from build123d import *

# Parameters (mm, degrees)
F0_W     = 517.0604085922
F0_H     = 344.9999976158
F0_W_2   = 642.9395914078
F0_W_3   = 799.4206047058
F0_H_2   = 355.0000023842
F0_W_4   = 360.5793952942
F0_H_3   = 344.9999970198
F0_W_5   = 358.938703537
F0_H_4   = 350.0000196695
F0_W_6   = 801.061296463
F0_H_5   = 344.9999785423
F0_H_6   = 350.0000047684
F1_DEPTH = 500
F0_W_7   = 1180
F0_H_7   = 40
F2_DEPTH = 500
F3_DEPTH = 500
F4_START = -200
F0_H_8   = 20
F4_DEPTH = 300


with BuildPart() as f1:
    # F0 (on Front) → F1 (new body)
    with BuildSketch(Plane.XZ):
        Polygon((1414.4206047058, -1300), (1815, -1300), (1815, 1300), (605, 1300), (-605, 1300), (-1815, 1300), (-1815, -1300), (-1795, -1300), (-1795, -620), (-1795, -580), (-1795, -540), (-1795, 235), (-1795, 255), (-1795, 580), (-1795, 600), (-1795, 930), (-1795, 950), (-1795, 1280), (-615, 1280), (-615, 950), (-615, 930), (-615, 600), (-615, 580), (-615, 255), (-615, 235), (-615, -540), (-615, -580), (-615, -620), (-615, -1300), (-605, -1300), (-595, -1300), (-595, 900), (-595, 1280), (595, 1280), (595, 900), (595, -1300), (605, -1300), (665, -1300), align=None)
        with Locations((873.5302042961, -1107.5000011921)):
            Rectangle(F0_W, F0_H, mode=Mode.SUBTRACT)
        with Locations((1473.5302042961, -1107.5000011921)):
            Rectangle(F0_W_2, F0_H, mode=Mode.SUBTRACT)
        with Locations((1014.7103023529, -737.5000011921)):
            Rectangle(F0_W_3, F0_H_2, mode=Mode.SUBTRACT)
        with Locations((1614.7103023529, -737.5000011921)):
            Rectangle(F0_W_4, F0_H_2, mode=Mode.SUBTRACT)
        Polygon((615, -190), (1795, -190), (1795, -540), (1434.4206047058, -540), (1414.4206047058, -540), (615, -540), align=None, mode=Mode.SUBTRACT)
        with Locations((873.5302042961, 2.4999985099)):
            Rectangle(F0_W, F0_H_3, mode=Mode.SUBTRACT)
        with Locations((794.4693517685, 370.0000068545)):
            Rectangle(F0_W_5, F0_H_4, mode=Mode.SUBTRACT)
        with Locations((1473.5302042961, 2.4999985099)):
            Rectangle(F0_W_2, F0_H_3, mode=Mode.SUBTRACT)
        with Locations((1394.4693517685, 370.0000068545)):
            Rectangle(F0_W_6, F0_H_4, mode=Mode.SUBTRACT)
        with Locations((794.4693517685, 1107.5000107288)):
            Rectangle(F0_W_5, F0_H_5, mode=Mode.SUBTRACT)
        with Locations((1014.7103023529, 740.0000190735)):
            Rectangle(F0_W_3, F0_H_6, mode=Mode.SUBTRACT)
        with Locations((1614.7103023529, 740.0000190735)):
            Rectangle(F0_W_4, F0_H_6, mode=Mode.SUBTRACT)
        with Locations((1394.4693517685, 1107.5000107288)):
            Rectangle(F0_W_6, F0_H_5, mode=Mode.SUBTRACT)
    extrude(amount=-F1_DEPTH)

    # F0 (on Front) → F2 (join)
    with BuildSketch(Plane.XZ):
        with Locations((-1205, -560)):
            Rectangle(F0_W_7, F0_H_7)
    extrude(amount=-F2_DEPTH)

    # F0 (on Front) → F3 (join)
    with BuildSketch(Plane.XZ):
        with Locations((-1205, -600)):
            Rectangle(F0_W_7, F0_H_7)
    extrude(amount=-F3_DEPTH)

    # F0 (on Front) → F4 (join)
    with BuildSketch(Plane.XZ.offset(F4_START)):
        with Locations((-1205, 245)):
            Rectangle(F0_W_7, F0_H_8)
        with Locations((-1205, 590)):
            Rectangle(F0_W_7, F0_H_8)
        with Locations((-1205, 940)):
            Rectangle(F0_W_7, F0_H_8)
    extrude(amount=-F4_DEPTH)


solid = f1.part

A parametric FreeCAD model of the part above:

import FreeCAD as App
import Part
import Sketcher
Q = App.Units.Quantity

doc = App.newDocument("Part")
body = doc.addObject("PartDesign::Body", "Body")

# Sketch on XZ plane
sketch1 = body.newObject("Sketcher::SketchObject", "Sketch")
sketch1.AttachmentSupport = (doc.getObject("XZ_Plane"), [""])
sketch1.MapMode = "FlatFace"
sketch1.addGeometry([
    Part.LineSegment(App.Vector(1815, -1300, 0), App.Vector(1815, 1300, 0)),  # 0
    Part.LineSegment(App.Vector(1815, 1300, 0), App.Vector(-1815, 1300, 0)),  # 1
    Part.LineSegment(App.Vector(-1815, 1300, 0), App.Vector(-1815, -1300, 0)),  # 2
    Part.LineSegment(App.Vector(-1815, -1300, 0), App.Vector(-1795, -1300, 0)),  # 3
    Part.LineSegment(App.Vector(-1795, -1300, 0), App.Vector(-1795, 1280, 0)),  # 4
    Part.LineSegment(App.Vector(-1795, 1280, 0), App.Vector(-615, 1280, 0)),  # 5
    Part.LineSegment(App.Vector(-615, 1280, 0), App.Vector(-615, -1300, 0)),  # 6
    Part.LineSegment(App.Vector(-615, -1300, 0), App.Vector(-595, -1300, 0)),  # 7
    Part.LineSegment(App.Vector(-595, -1300, 0), App.Vector(-595, 1280, 0)),  # 8
    Part.LineSegment(App.Vector(-595, 1280, 0), App.Vector(595, 1280, 0)),  # 9
    Part.LineSegment(App.Vector(595, 1280, 0), App.Vector(595, -1300, 0)),  # 10
    Part.LineSegment(App.Vector(595, -1300, 0), App.Vector(1815, -1300, 0)),  # 11
    Part.LineSegment(App.Vector(1132, -1280, 0), App.Vector(615, -1280, 0)),  # 12
    Part.LineSegment(App.Vector(615, -1280, 0), App.Vector(615, -935, 0)),  # 13
    Part.LineSegment(App.Vector(615, -935, 0), App.Vector(1132, -935, 0)),  # 14
    Part.LineSegment(App.Vector(1132, -935, 0), App.Vector(1132, -1280, 0)),  # 15
    Part.LineSegment(App.Vector(1414, -915, 0), App.Vector(615, -915, 0)),  # 16
    Part.LineSegment(App.Vector(615, -915, 0), App.Vector(615, -560, 0)),  # 17
    Part.LineSegment(App.Vector(615, -560, 0), App.Vector(1414, -560, 0)),  # 18
    Part.LineSegment(App.Vector(1414, -560, 0), App.Vector(1414, -915, 0)),  # 19
    Part.LineSegment(App.Vector(1795, -1280, 0), App.Vector(1152, -1280, 0)),  # 20
    Part.LineSegment(App.Vector(1152, -1280, 0), App.Vector(1152, -935, 0)),  # 21
    Part.LineSegment(App.Vector(1152, -935, 0), App.Vector(1795, -935, 0)),  # 22
    Part.LineSegment(App.Vector(1795, -935, 0), App.Vector(1795, -1280, 0)),  # 23
    Part.LineSegment(App.Vector(1795, -915, 0), App.Vector(1434, -915, 0)),  # 24
    Part.LineSegment(App.Vector(1434, -915, 0), App.Vector(1434, -560, 0)),  # 25
    Part.LineSegment(App.Vector(1434, -560, 0), App.Vector(1795, -560, 0)),  # 26
    Part.LineSegment(App.Vector(1795, -560, 0), App.Vector(1795, -915, 0)),  # 27
    Part.LineSegment(App.Vector(615, -540, 0), App.Vector(615, -190, 0)),  # 28
    Part.LineSegment(App.Vector(615, -190, 0), App.Vector(1795, -190, 0)),  # 29
    Part.LineSegment(App.Vector(1795, -190, 0), App.Vector(1795, -540, 0)),  # 30
    Part.LineSegment(App.Vector(1795, -540, 0), App.Vector(615, -540, 0)),  # 31
    Part.LineSegment(App.Vector(1132, -170, 0), App.Vector(615, -170, 0)),  # 32
    Part.LineSegment(App.Vector(615, -170, 0), App.Vector(615, 175, 0)),  # 33
    Part.LineSegment(App.Vector(615, 175, 0), App.Vector(1132, 175, 0)),  # 34
    Part.LineSegment(App.Vector(1132, 175, 0), App.Vector(1132, -170, 0)),  # 35
    Part.LineSegment(App.Vector(974, 195, 0), App.Vector(615, 195, 0)),  # 36
    Part.LineSegment(App.Vector(615, 195, 0), App.Vector(615, 545, 0)),  # 37
    Part.LineSegment(App.Vector(615, 545, 0), App.Vector(974, 545, 0)),  # 38
    Part.LineSegment(App.Vector(974, 545, 0), App.Vector(974, 195, 0)),  # 39
    Part.LineSegment(App.Vector(974, 935, 0), App.Vector(615, 935, 0)),  # 40
    Part.LineSegment(App.Vector(615, 935, 0), App.Vector(615, 1280, 0)),  # 41
    Part.LineSegment(App.Vector(615, 1280, 0), App.Vector(974, 1280, 0)),  # 42
    Part.LineSegment(App.Vector(974, 1280, 0), App.Vector(974, 935, 0)),  # 43
    Part.LineSegment(App.Vector(1414, 565, 0), App.Vector(615, 565, 0)),  # 44
    Part.LineSegment(App.Vector(615, 565, 0), App.Vector(615, 915, 0)),  # 45
    Part.LineSegment(App.Vector(615, 915, 0), App.Vector(1414, 915, 0)),  # 46
    Part.LineSegment(App.Vector(1414, 915, 0), App.Vector(1414, 565, 0)),  # 47
    Part.LineSegment(App.Vector(1795, -170, 0), App.Vector(1152, -170, 0)),  # 48
    Part.LineSegment(App.Vector(1152, -170, 0), App.Vector(1152, 175, 0)),  # 49
    Part.LineSegment(App.Vector(1152, 175, 0), App.Vector(1795, 175, 0)),  # 50
    Part.LineSegment(App.Vector(1795, 175, 0), App.Vector(1795, -170, 0)),  # 51
    Part.LineSegment(App.Vector(1795, 195, 0), App.Vector(994, 195, 0)),  # 52
    Part.LineSegment(App.Vector(994, 195, 0), App.Vector(994, 545, 0)),  # 53
    Part.LineSegment(App.Vector(994, 545, 0), App.Vector(1795, 545, 0)),  # 54
    Part.LineSegment(App.Vector(1795, 545, 0), App.Vector(1795, 195, 0)),  # 55
    Part.LineSegment(App.Vector(1795, 935, 0), App.Vector(994, 935, 0)),  # 56
    Part.LineSegment(App.Vector(994, 935, 0), App.Vector(994, 1280, 0)),  # 57
    Part.LineSegment(App.Vector(994, 1280, 0), App.Vector(1795, 1280, 0)),  # 58
    Part.LineSegment(App.Vector(1795, 1280, 0), App.Vector(1795, 935, 0)),  # 59
    Part.LineSegment(App.Vector(1795, 565, 0), App.Vector(1434, 565, 0)),  # 60
    Part.LineSegment(App.Vector(1434, 565, 0), App.Vector(1434, 915, 0)),  # 61
    Part.LineSegment(App.Vector(1434, 915, 0), App.Vector(1795, 915, 0)),  # 62
    Part.LineSegment(App.Vector(1795, 915, 0), App.Vector(1795, 565, 0)),  # 63
], False)
sketch1.addConstraint([
    Sketcher.Constraint("Coincident", 0, 2, 1, 1),
    Sketcher.Constraint("Coincident", 1, 2, 2, 1),
    Sketcher.Constraint("Coincident", 2, 2, 3, 1),
    Sketcher.Constraint("Coincident", 3, 2, 4, 1),
    Sketcher.Constraint("Coincident", 4, 2, 5, 1),
    Sketcher.Constraint("Coincident", 5, 2, 6, 1),
    Sketcher.Constraint("Coincident", 6, 2, 7, 1),
    Sketcher.Constraint("Coincident", 7, 2, 8, 1),
    Sketcher.Constraint("Coincident", 8, 2, 9, 1),
    Sketcher.Constraint("Coincident", 9, 2, 10, 1),
    Sketcher.Constraint("Coincident", 10, 2, 11, 1),
    Sketcher.Constraint("Coincident", 11, 2, 0, 1),
    Sketcher.Constraint("Coincident", 12, 2, 13, 1),
    Sketcher.Constraint("Coincident", 13, 2, 14, 1),
    Sketcher.Constraint("Coincident", 14, 2, 15, 1),
    Sketcher.Constraint("Coincident", 15, 2, 12, 1),
    Sketcher.Constraint("Coincident", 16, 2, 17, 1),
    Sketcher.Constraint("Coincident", 17, 2, 18, 1),
    Sketcher.Constraint("Coincident", 18, 2, 19, 1),
    Sketcher.Constraint("Coincident", 19, 2, 16, 1),
    Sketcher.Constraint("Coincident", 20, 2, 21, 1),
    Sketcher.Constraint("Coincident", 21, 2, 22, 1),
    Sketcher.Constraint("Coincident", 22, 2, 23, 1),
    Sketcher.Constraint("Coincident", 23, 2, 20, 1),
    Sketcher.Constraint("Coincident", 24, 2, 25, 1),
    Sketcher.Constraint("Coincident", 25, 2, 26, 1),
    Sketcher.Constraint("Coincident", 26, 2, 27, 1),
    Sketcher.Constraint("Coincident", 27, 2, 24, 1),
    Sketcher.Constraint("Coincident", 28, 2, 29, 1),
    Sketcher.Constraint("Coincident", 29, 2, 30, 1),
    Sketcher.Constraint("Coincident", 30, 2, 31, 1),
    Sketcher.Constraint("Coincident", 31, 2, 28, 1),
    Sketcher.Constraint("Coincident", 32, 2, 33, 1),
    Sketcher.Constraint("Coincident", 33, 2, 34, 1),
    Sketcher.Constraint("Coincident", 34, 2, 35, 1),
    Sketcher.Constraint("Coincident", 35, 2, 32, 1),
    Sketcher.Constraint("Coincident", 36, 2, 37, 1),
    Sketcher.Constraint("Coincident", 37, 2, 38, 1),
    Sketcher.Constraint("Coincident", 38, 2, 39, 1),
    Sketcher.Constraint("Coincident", 39, 2, 36, 1),
    Sketcher.Constraint("Coincident", 40, 2, 41, 1),
    Sketcher.Constraint("Coincident", 41, 2, 42, 1),
    Sketcher.Constraint("Coincident", 42, 2, 43, 1),
    Sketcher.Constraint("Coincident", 43, 2, 40, 1),
    Sketcher.Constraint("Coincident", 44, 2, 45, 1),
    Sketcher.Constraint("Coincident", 45, 2, 46, 1),
    Sketcher.Constraint("Coincident", 46, 2, 47, 1),
    Sketcher.Constraint("Coincident", 47, 2, 44, 1),
    Sketcher.Constraint("Coincident", 48, 2, 49, 1),
    Sketcher.Constraint("Coincident", 49, 2, 50, 1),
    Sketcher.Constraint("Coincident", 50, 2, 51, 1),
    Sketcher.Constraint("Coincident", 51, 2, 48, 1),
    Sketcher.Constraint("Coincident", 52, 2, 53, 1),
    Sketcher.Constraint("Coincident", 53, 2, 54, 1),
    Sketcher.Constraint("Coincident", 54, 2, 55, 1),
    Sketcher.Constraint("Coincident", 55, 2, 52, 1),
    Sketcher.Constraint("Coincident", 56, 2, 57, 1),
    Sketcher.Constraint("Coincident", 57, 2, 58, 1),
    Sketcher.Constraint("Coincident", 58, 2, 59, 1),
    Sketcher.Constraint("Coincident", 59, 2, 56, 1),
    Sketcher.Constraint("Coincident", 60, 2, 61, 1),
    Sketcher.Constraint("Coincident", 61, 2, 62, 1),
    Sketcher.Constraint("Coincident", 62, 2, 63, 1),
    Sketcher.Constraint("Coincident", 63, 2, 60, 1),
    Sketcher.Constraint("Vertical", 0),
    Sketcher.Constraint("Horizontal", 1),
    Sketcher.Constraint("Vertical", 2),
    Sketcher.Constraint("Horizontal", 3),
    Sketcher.Constraint("Vertical", 4),
    Sketcher.Constraint("Horizontal", 5),
    Sketcher.Constraint("Vertical", 6),
    Sketcher.Constraint("Horizontal", 7),
    Sketcher.Constraint("Vertical", 8),
    Sketcher.Constraint("Horizontal", 9),
    Sketcher.Constraint("Vertical", 10),
    Sketcher.Constraint("Horizontal", 11),
    Sketcher.Constraint("Horizontal", 12),
    Sketcher.Constraint("Vertical", 13),
    Sketcher.Constraint("Horizontal", 14),
    Sketcher.Constraint("Vertical", 15),
    Sketcher.Constraint("Horizontal", 16),
    Sketcher.Constraint("Vertical", 17),
    Sketcher.Constraint("Horizontal", 18),
    Sketcher.Constraint("Vertical", 19),
    Sketcher.Constraint("Horizontal", 20),
    Sketcher.Constraint("Vertical", 21),
    Sketcher.Constraint("Horizontal", 22),
    Sketcher.Constraint("Vertical", 23),
    Sketcher.Constraint("Horizontal", 24),
    Sketcher.Constraint("Vertical", 25),
    Sketcher.Constraint("Horizontal", 26),
    Sketcher.Constraint("Vertical", 27),
    Sketcher.Constraint("Vertical", 28),
    Sketcher.Constraint("Horizontal", 29),
    Sketcher.Constraint("Vertical", 30),
    Sketcher.Constraint("Horizontal", 31),
    Sketcher.Constraint("Horizontal", 32),
    Sketcher.Constraint("Vertical", 33),
    Sketcher.Constraint("Horizontal", 34),
    Sketcher.Constraint("Vertical", 35),
    Sketcher.Constraint("Horizontal", 36),
    Sketcher.Constraint("Vertical", 37),
    Sketcher.Constraint("Horizontal", 38),
    Sketcher.Constraint("Vertical", 39),
    Sketcher.Constraint("Horizontal", 40),
    Sketcher.Constraint("Vertical", 41),
    Sketcher.Constraint("Horizontal", 42),
    Sketcher.Constraint("Vertical", 43),
    Sketcher.Constraint("Horizontal", 44),
    Sketcher.Constraint("Vertical", 45),
    Sketcher.Constraint("Horizontal", 46),
    Sketcher.Constraint("Vertical", 47),
    Sketcher.Constraint("Horizontal", 48),
    Sketcher.Constraint("Vertical", 49),
    Sketcher.Constraint("Horizontal", 50),
    Sketcher.Constraint("Vertical", 51),
    Sketcher.Constraint("Horizontal", 52),
    Sketcher.Constraint("Vertical", 53),
    Sketcher.Constraint("Horizontal", 54),
    Sketcher.Constraint("Vertical", 55),
    Sketcher.Constraint("Horizontal", 56),
    Sketcher.Constraint("Vertical", 57),
    Sketcher.Constraint("Horizontal", 58),
    Sketcher.Constraint("Vertical", 59),
    Sketcher.Constraint("Horizontal", 60),
    Sketcher.Constraint("Vertical", 61),
    Sketcher.Constraint("Horizontal", 62),
    Sketcher.Constraint("Vertical", 63),
    Sketcher.Constraint("Symmetric", 0, 2, 2, 2, -1, 1),
    Sketcher.Constraint("Symmetric", 5, 2, 12, 2, -1, 1),
    Sketcher.Constraint("Symmetric", 4, 2, 23, 2, -1, 1),
    Sketcher.Constraint("Symmetric", 7, 2, 10, 2, -2),
    Sketcher.Constraint("Symmetric", 5, 2, 41, 2, -2),
    Sketcher.Constraint("Symmetric", 4, 2, 58, 2, -2),
    Sketcher.Constraint("Horizontal", 3, 2, 6, 2),
    Sketcher.Constraint("Horizontal", 5, 2, 8, 2),
    Sketcher.Constraint("Horizontal", 14, 2, 21, 2),
    Sketcher.Constraint("Horizontal", 19, 2, 24, 2),
    Sketcher.Constraint("Horizontal", 18, 2, 25, 2),
    Sketcher.Constraint("Horizontal", 35, 2, 48, 2),
    Sketcher.Constraint("Horizontal", 34, 2, 49, 2),
    Sketcher.Constraint("Horizontal", 39, 2, 52, 2),
    Sketcher.Constraint("Horizontal", 38, 2, 53, 2),
    Sketcher.Constraint("Horizontal", 43, 2, 56, 2),
    Sketcher.Constraint("Horizontal", 47, 2, 60, 2),
    Sketcher.Constraint("Horizontal", 46, 2, 61, 2),
    Sketcher.Constraint("Vertical", 13, 2, 16, 2),
    Sketcher.Constraint("Vertical", 23, 2, 26, 2),
    Sketcher.Constraint("Vertical", 17, 2, 28, 2),
    Sketcher.Constraint("Vertical", 27, 2, 29, 2),
    Sketcher.Constraint("Vertical", 31, 2, 32, 2),
    Sketcher.Constraint("Vertical", 15, 2, 34, 2),
    Sketcher.Constraint("Vertical", 33, 2, 36, 2),
    Sketcher.Constraint("Vertical", 39, 2, 42, 2),
    Sketcher.Constraint("Vertical", 41, 2, 44, 2),
    Sketcher.Constraint("Vertical", 19, 2, 46, 2),
    Sketcher.Constraint("Vertical", 21, 2, 48, 2),
    Sketcher.Constraint("Vertical", 30, 2, 50, 2),
    Sketcher.Constraint("Vertical", 51, 2, 54, 2),
    Sketcher.Constraint("Vertical", 53, 2, 56, 2),
    Sketcher.Constraint("Vertical", 25, 2, 60, 2),
    Sketcher.Constraint("Vertical", 59, 2, 62, 2),
    Sketcher.Constraint("Equal", 3, 7),
    Sketcher.Constraint("Equal", 23, 33),
    Sketcher.Constraint("DistanceX", 1, 2, 1, 1, Q("3630 mm")),
    Sketcher.Constraint("DistanceX", 3, 1, 3, 2, Q("20 mm")),
    Sketcher.Constraint("DistanceX", 5, 1, 5, 2, Q("1180 mm")),
    Sketcher.Constraint("DistanceY", 0, 1, 0, 2, Q("2600 mm")),
    Sketcher.Constraint("DistanceY", 4, 1, 4, 2, Q("2580 mm")),
    Sketcher.Constraint("DistanceY", 28, 1, 28, 2, Q("350 mm")),
    Sketcher.Constraint("DistanceY", 17, 2, -1, 1, Q("560 mm")),
    Sketcher.Constraint("DistanceY", 28, 2, -1, 1, Q("190 mm")),
    Sketcher.Constraint("DistanceY", 32, 2, -1, 1, Q("170 mm")),
    Sketcher.Constraint("DistanceX", 12, 2, 12, 1, Q("517.060409 mm")),
    Sketcher.Constraint("DistanceX", 20, 2, 20, 1, Q("642.939591 mm")),
    Sketcher.Constraint("DistanceY", 37, 1, 37, 2, Q("350.00002 mm")),
    Sketcher.Constraint("DistanceY", 41, 1, 41, 2, Q("344.999979 mm")),
    Sketcher.Constraint("DistanceX", 16, 2, 16, 1, Q("799.420605 mm")),
    Sketcher.Constraint("DistanceX", 24, 2, 24, 1, Q("360.579395 mm")),
    Sketcher.Constraint("DistanceX", 36, 2, 36, 1, Q("358.938704 mm")),
    Sketcher.Constraint("DistanceX", 52, 2, 52, 1, Q("801.061296 mm")),
    Sketcher.Constraint("DistanceY", 13, 1, 13, 2, Q("344.999998 mm")),
    Sketcher.Constraint("DistanceY", 17, 1, 17, 2, Q("355.000002 mm")),
    Sketcher.Constraint("DistanceY", 45, 1, 45, 2, Q("350.000005 mm")),
    Sketcher.Constraint("DistanceY", -1, 1, 45, 2, Q("915.000021 mm")),
    Sketcher.Constraint("DistanceY", -1, 1, 36, 2, Q("194.999997 mm")),
])
pad1 = body.newObject("PartDesign::Pad", "Pad")
pad1.Profile = sketch1
pad1.Length = 500
pad1.Reversed = True

# Sketch on XZ plane
sketch2 = body.newObject("Sketcher::SketchObject", "Sketch001")
sketch2.AttachmentSupport = (doc.getObject("XZ_Plane"), [""])
sketch2.MapMode = "FlatFace"
sketch2.addGeometry([
    Part.LineSegment(App.Vector(-1795, -540, 0), App.Vector(-1795, -580, 0)),
    Part.LineSegment(App.Vector(-1795, -580, 0), App.Vector(-615, -580, 0)),
    Part.LineSegment(App.Vector(-615, -580, 0), App.Vector(-615, -540, 0)),
    Part.LineSegment(App.Vector(-615, -540, 0), App.Vector(-1795, -540, 0)),
], False)
sketch2.addConstraint([
    Sketcher.Constraint("Coincident", 0, 2, 1, 1),
    Sketcher.Constraint("Coincident", 1, 2, 2, 1),
    Sketcher.Constraint("Coincident", 2, 2, 3, 1),
    Sketcher.Constraint("Coincident", 3, 2, 0, 1),
    Sketcher.Constraint("Vertical", 0),
    Sketcher.Constraint("Horizontal", 1),
    Sketcher.Constraint("Vertical", 2),
    Sketcher.Constraint("Horizontal", 3),
    Sketcher.Constraint("DistanceX", 1, 1, 1, 2, Q("1180 mm")),
    Sketcher.Constraint("DistanceY", 0, 2, 0, 1, Q("40 mm")),
    Sketcher.Constraint("DistanceX", 0, 2, -1, 1, Q("1795 mm")),
    Sketcher.Constraint("DistanceY", 0, 2, -1, 1, Q("580 mm")),
])
pad2 = body.newObject("PartDesign::Pad", "Pad001")
pad2.Profile = sketch2
pad2.Length = 500
pad2.Reversed = True

# Sketch on XZ plane
sketch3 = body.newObject("Sketcher::SketchObject", "Sketch002")
sketch3.AttachmentSupport = (doc.getObject("XZ_Plane"), [""])
sketch3.MapMode = "FlatFace"
sketch3.addGeometry([
    Part.LineSegment(App.Vector(-1795, -580, 0), App.Vector(-1795, -620, 0)),
    Part.LineSegment(App.Vector(-1795, -620, 0), App.Vector(-615, -620, 0)),
    Part.LineSegment(App.Vector(-615, -620, 0), App.Vector(-615, -580, 0)),
    Part.LineSegment(App.Vector(-615, -580, 0), App.Vector(-1795, -580, 0)),
], False)
sketch3.addConstraint([
    Sketcher.Constraint("Coincident", 0, 2, 1, 1),
    Sketcher.Constraint("Coincident", 1, 2, 2, 1),
    Sketcher.Constraint("Coincident", 2, 2, 3, 1),
    Sketcher.Constraint("Coincident", 3, 2, 0, 1),
    Sketcher.Constraint("Vertical", 0),
    Sketcher.Constraint("Horizontal", 1),
    Sketcher.Constraint("Vertical", 2),
    Sketcher.Constraint("Horizontal", 3),
    Sketcher.Constraint("DistanceX", 1, 1, 1, 2, Q("1180 mm")),
    Sketcher.Constraint("DistanceY", 0, 2, 0, 1, Q("40 mm")),
    Sketcher.Constraint("DistanceX", 0, 2, -1, 1, Q("1795 mm")),
    Sketcher.Constraint("DistanceY", 0, 2, -1, 1, Q("620 mm")),
])
pad3 = body.newObject("PartDesign::Pad", "Pad002")
pad3.Profile = sketch3
pad3.Length = 500
pad3.Reversed = True

# Sketch on XZ plane
sketch4 = body.newObject("Sketcher::SketchObject", "Sketch003")
sketch4.AttachmentSupport = (doc.getObject("XZ_Plane"), [""])
sketch4.MapMode = "FlatFace"
sketch4.AttachmentOffset = App.Placement(App.Vector(0, 0, -200), App.Rotation())
sketch4.addGeometry([
    Part.LineSegment(App.Vector(-1795, 255, 0), App.Vector(-1795, 235, 0)),  # 0
    Part.LineSegment(App.Vector(-1795, 235, 0), App.Vector(-615, 235, 0)),  # 1
    Part.LineSegment(App.Vector(-615, 235, 0), App.Vector(-615, 255, 0)),  # 2
    Part.LineSegment(App.Vector(-615, 255, 0), App.Vector(-1795, 255, 0)),  # 3
    Part.LineSegment(App.Vector(-1795, 600, 0), App.Vector(-1795, 580, 0)),  # 4
    Part.LineSegment(App.Vector(-1795, 580, 0), App.Vector(-615, 580, 0)),  # 5
    Part.LineSegment(App.Vector(-615, 580, 0), App.Vector(-615, 600, 0)),  # 6
    Part.LineSegment(App.Vector(-615, 600, 0), App.Vector(-1795, 600, 0)),  # 7
    Part.LineSegment(App.Vector(-1795, 950, 0), App.Vector(-1795, 930, 0)),  # 8
    Part.LineSegment(App.Vector(-1795, 930, 0), App.Vector(-615, 930, 0)),  # 9
    Part.LineSegment(App.Vector(-615, 930, 0), App.Vector(-615, 950, 0)),  # 10
    Part.LineSegment(App.Vector(-615, 950, 0), App.Vector(-1795, 950, 0)),  # 11
], False)
sketch4.addConstraint([
    Sketcher.Constraint("Coincident", 0, 2, 1, 1),
    Sketcher.Constraint("Coincident", 1, 2, 2, 1),
    Sketcher.Constraint("Coincident", 2, 2, 3, 1),
    Sketcher.Constraint("Coincident", 3, 2, 0, 1),
    Sketcher.Constraint("Coincident", 4, 2, 5, 1),
    Sketcher.Constraint("Coincident", 5, 2, 6, 1),
    Sketcher.Constraint("Coincident", 6, 2, 7, 1),
    Sketcher.Constraint("Coincident", 7, 2, 4, 1),
    Sketcher.Constraint("Coincident", 8, 2, 9, 1),
    Sketcher.Constraint("Coincident", 9, 2, 10, 1),
    Sketcher.Constraint("Coincident", 10, 2, 11, 1),
    Sketcher.Constraint("Coincident", 11, 2, 8, 1),
    Sketcher.Constraint("Vertical", 0),
    Sketcher.Constraint("Horizontal", 1),
    Sketcher.Constraint("Vertical", 2),
    Sketcher.Constraint("Horizontal", 3),
    Sketcher.Constraint("Vertical", 4),
    Sketcher.Constraint("Horizontal", 5),
    Sketcher.Constraint("Vertical", 6),
    Sketcher.Constraint("Horizontal", 7),
    Sketcher.Constraint("Vertical", 8),
    Sketcher.Constraint("Horizontal", 9),
    Sketcher.Constraint("Vertical", 10),
    Sketcher.Constraint("Horizontal", 11),
    Sketcher.Constraint("Vertical", 3, 2, 4, 2),
    Sketcher.Constraint("Vertical", 2, 2, 5, 2),
    Sketcher.Constraint("Vertical", 7, 2, 8, 2),
    Sketcher.Constraint("Vertical", 6, 2, 9, 2),
    Sketcher.Constraint("Equal", 2, 4),
    Sketcher.Constraint("Equal", 6, 8),
    Sketcher.Constraint("DistanceX", 1, 1, 1, 2, Q("1180 mm")),
    Sketcher.Constraint("DistanceY", 0, 2, 0, 1, Q("20 mm")),
    Sketcher.Constraint("DistanceX", 0, 2, -1, 1, Q("1795 mm")),
    Sketcher.Constraint("DistanceY", -1, 1, 0, 2, Q("235 mm")),
    Sketcher.Constraint("DistanceY", -1, 1, 4, 2, Q("580 mm")),
    Sketcher.Constraint("DistanceY", -1, 1, 8, 2, Q("930 mm")),
])
pad4 = body.newObject("PartDesign::Pad", "Pad003")
pad4.Profile = sketch4
pad4.Length = 300
pad4.Reversed = True

doc.recompute()
